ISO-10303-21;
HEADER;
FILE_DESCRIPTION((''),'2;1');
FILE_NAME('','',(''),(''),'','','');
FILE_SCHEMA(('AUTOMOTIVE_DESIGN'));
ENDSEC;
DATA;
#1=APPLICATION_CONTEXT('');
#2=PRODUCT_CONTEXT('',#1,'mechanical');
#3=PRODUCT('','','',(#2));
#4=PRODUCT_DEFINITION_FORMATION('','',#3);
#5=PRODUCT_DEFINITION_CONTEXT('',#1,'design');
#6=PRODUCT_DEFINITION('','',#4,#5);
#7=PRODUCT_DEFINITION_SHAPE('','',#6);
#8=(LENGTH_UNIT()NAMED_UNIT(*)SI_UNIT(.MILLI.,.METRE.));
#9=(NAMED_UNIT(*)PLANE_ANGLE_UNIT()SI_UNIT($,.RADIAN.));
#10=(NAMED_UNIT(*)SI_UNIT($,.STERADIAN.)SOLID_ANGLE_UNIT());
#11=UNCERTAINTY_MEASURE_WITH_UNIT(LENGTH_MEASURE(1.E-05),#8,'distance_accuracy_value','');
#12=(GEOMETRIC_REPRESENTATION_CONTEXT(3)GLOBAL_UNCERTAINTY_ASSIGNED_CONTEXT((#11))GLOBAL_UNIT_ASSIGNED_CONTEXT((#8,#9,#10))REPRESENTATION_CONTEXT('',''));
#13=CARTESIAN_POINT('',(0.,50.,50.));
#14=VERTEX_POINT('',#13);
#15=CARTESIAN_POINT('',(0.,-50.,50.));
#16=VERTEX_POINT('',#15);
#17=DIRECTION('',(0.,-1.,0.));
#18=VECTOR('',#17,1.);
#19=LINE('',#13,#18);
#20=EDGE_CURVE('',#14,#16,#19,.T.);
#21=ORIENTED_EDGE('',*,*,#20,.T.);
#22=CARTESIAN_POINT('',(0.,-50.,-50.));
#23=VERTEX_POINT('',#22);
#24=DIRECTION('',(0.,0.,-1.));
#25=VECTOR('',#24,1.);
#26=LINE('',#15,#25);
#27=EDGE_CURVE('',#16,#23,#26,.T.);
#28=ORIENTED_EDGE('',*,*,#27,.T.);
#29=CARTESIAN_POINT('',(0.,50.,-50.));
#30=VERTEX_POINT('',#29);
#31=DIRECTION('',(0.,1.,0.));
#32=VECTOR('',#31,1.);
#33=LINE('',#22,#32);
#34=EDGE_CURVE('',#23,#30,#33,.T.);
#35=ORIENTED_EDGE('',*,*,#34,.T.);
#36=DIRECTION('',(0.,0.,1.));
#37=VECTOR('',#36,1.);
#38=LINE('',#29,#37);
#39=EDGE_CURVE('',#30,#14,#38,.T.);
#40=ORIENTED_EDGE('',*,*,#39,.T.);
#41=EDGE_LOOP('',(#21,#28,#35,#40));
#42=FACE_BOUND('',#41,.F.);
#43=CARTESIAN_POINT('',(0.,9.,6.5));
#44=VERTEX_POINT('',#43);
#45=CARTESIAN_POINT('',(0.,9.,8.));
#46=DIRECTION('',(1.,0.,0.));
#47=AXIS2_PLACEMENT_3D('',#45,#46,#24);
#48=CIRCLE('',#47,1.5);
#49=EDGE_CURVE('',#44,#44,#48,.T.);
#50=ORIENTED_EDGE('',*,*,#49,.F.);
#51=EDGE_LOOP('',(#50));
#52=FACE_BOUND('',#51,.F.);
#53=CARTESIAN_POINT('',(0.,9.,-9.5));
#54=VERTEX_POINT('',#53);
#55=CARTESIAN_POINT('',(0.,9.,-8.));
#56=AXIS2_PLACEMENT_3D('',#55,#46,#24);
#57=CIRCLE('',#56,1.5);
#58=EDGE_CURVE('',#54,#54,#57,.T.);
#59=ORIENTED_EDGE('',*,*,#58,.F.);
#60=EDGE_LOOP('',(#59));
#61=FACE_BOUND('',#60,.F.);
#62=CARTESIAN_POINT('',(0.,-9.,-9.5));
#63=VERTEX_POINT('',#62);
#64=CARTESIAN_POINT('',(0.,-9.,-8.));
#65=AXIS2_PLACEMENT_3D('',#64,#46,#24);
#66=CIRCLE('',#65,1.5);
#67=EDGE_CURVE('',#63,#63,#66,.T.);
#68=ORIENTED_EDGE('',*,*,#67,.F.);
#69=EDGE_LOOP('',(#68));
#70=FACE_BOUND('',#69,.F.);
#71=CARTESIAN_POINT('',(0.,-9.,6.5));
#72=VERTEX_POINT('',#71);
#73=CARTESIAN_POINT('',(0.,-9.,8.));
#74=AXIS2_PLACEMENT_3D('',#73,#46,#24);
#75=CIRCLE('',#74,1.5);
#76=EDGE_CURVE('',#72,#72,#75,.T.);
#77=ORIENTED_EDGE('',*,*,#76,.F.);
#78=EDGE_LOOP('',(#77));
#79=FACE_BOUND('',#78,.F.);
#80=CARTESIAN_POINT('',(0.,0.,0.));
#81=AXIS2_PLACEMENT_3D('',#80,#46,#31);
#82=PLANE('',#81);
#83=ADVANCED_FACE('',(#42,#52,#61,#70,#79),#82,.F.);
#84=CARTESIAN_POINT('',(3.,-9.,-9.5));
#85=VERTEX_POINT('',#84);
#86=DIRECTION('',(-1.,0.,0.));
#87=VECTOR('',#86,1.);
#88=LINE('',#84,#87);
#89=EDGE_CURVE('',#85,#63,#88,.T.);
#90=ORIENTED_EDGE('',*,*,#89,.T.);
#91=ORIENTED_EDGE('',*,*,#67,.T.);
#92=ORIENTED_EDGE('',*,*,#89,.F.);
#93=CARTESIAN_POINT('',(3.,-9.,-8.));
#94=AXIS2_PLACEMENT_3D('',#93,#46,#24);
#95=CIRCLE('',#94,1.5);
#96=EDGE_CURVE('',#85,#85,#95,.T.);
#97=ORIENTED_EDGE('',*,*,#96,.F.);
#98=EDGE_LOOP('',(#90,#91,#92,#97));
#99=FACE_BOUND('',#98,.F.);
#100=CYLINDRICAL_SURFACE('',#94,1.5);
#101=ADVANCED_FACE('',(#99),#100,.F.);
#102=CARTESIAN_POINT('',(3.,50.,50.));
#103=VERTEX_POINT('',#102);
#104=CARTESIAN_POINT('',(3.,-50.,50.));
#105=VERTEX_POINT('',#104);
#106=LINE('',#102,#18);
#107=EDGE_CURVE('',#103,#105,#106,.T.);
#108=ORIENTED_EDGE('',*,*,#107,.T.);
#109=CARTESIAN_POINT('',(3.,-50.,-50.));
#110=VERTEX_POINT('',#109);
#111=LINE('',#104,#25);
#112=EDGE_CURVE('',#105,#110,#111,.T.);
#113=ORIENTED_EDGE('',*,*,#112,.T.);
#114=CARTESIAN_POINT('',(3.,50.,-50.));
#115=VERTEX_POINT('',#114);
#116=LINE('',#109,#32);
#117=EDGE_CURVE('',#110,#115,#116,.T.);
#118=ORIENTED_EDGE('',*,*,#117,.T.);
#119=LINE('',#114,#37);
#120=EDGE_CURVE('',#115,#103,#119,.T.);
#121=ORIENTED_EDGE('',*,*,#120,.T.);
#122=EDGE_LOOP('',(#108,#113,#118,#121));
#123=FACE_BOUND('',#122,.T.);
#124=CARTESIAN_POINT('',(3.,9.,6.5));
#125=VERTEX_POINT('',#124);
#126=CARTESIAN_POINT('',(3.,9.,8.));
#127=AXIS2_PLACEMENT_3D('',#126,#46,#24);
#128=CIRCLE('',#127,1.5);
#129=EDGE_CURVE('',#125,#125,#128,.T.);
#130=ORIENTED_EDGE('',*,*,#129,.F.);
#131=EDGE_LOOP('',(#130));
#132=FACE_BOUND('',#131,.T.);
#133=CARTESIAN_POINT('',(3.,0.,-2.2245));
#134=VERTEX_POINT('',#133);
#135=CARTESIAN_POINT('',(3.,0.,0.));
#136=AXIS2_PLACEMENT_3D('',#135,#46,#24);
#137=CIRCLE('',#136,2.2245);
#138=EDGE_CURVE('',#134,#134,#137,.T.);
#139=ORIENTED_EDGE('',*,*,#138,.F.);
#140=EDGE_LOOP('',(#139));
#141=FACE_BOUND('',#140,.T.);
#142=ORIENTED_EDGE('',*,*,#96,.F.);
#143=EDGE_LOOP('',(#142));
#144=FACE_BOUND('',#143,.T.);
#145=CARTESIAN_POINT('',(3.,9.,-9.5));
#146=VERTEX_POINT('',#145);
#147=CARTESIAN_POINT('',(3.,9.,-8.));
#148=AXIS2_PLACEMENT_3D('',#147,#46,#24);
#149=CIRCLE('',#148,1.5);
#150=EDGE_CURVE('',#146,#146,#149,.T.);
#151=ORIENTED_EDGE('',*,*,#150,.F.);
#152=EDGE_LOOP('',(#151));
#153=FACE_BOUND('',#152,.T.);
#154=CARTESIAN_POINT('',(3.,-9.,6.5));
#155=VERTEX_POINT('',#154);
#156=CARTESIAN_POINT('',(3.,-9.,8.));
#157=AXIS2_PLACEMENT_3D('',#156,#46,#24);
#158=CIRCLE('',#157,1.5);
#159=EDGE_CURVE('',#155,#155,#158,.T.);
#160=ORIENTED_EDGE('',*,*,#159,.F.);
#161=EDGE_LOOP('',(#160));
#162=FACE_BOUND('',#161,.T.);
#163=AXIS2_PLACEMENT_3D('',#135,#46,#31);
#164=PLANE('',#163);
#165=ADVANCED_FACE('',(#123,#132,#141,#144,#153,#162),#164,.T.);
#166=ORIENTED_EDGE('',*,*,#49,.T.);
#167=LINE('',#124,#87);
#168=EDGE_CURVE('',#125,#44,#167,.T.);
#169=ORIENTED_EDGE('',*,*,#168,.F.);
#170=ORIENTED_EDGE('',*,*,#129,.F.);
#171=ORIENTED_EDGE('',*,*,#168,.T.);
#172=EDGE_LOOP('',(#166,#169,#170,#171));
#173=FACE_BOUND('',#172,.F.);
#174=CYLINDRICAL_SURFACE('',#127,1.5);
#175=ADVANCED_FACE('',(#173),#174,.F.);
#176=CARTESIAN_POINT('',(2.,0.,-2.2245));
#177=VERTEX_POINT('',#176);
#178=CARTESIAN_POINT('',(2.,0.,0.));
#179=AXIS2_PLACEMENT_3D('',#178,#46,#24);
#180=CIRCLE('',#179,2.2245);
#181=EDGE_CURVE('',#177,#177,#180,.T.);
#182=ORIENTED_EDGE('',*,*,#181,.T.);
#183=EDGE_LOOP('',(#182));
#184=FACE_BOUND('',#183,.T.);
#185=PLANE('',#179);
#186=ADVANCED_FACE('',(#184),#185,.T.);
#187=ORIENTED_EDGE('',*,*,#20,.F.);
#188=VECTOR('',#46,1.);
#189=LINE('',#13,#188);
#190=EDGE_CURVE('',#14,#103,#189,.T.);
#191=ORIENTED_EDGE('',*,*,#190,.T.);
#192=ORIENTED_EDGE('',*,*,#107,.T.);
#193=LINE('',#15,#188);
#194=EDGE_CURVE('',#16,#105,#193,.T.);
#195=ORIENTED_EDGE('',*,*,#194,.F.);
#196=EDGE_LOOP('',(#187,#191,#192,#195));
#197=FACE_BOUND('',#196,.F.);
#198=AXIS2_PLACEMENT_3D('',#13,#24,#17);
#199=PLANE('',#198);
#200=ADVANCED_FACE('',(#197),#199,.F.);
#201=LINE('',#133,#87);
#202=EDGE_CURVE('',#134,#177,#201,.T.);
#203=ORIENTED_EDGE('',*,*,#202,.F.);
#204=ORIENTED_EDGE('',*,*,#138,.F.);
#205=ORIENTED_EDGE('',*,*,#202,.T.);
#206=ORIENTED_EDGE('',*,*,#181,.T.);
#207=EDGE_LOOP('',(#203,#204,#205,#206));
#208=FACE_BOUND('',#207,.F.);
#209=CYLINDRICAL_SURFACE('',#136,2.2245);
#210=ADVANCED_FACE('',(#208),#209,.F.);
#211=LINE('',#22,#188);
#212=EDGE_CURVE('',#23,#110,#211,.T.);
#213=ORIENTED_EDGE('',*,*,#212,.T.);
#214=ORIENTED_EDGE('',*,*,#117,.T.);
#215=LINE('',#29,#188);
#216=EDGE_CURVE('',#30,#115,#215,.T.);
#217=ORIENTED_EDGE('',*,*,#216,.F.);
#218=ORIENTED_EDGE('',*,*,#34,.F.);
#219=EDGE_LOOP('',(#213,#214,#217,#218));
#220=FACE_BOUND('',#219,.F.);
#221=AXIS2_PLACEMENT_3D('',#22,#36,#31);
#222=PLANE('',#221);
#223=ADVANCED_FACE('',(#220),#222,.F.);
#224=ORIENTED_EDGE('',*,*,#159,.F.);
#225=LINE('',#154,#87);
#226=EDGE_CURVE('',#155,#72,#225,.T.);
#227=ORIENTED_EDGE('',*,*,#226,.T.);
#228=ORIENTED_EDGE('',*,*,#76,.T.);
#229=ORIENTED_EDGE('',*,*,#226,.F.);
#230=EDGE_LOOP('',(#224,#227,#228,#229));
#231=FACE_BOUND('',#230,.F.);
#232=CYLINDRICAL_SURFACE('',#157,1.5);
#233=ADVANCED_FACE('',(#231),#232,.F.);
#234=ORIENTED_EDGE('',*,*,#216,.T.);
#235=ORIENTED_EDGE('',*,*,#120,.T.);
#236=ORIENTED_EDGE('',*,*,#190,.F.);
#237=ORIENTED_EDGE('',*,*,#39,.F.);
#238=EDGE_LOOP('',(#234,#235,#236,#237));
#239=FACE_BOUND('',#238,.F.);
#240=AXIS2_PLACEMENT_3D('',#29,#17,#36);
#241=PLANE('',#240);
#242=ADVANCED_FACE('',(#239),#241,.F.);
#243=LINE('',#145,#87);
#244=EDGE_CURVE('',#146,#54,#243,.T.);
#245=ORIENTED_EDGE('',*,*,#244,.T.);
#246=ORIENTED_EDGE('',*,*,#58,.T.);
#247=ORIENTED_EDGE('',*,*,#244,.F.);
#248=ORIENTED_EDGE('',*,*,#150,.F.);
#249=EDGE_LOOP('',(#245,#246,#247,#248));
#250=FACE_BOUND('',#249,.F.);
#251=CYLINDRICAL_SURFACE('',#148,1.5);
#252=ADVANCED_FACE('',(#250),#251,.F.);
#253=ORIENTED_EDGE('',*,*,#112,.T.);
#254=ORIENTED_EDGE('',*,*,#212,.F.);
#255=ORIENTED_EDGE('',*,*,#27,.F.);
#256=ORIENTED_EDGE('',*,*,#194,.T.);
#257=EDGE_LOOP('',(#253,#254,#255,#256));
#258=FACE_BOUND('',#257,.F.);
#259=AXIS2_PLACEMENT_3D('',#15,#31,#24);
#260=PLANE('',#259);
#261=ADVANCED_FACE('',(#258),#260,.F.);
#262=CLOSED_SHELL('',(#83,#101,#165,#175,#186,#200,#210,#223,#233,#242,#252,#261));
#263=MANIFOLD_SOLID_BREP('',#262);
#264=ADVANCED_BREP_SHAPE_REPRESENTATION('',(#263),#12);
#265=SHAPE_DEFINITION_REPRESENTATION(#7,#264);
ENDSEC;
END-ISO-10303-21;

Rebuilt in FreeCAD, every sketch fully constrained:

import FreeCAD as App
import Part
import Sketcher
from FreeCAD import Vector
Q = App.Units.Quantity

doc = App.newDocument("Part")
body = doc.addObject("PartDesign::Body", "Body")

sketch1 = doc.addObject("Sketcher::SketchObject", "Sketch")
body.addObject(sketch1)
sketch1.AttachmentSupport = (doc.YZ_Plane, [""])
sketch1.MapMode = "FlatFace"
sketch1.addGeometry(Part.LineSegment(Vector(50, -50, 0), Vector(50, 50, 0)), False)
sketch1.addGeometry(Part.LineSegment(Vector(50, 50, 0), Vector(-50, 50, 0)), False)
sketch1.addGeometry(Part.LineSegment(Vector(-50, 50, 0), Vector(-50, -50, 0)), False)
sketch1.addGeometry(Part.LineSegment(Vector(-50, -50, 0), Vector(50, -50, 0)), False)
sketch1.addConstraint(Sketcher.Constraint("Coincident", 0, 2, 1, 1))
sketch1.addConstraint(Sketcher.Constraint("Coincident", 1, 2, 2, 1))
sketch1.addConstraint(Sketcher.Constraint("Coincident", 2, 2, 3, 1))
sketch1.addConstraint(Sketcher.Constraint("Coincident", 3, 2, 0, 1))
sketch1.addConstraint(Sketcher.Constraint("Vertical", 0))
sketch1.addConstraint(Sketcher.Constraint("Horizontal", 1))
sketch1.addConstraint(Sketcher.Constraint("Vertical", 2))
sketch1.addConstraint(Sketcher.Constraint("Horizontal", 3))
sketch1.addConstraint(Sketcher.Constraint("Symmetric", 0, 2, 2, 2, -1, 1))
sketch1.addConstraint(Sketcher.Constraint("Equal", 3, 0))
sketch1.addConstraint(Sketcher.Constraint("DistanceX", 1, 2, 1, 1, Q("100 mm")))
pad1 = doc.addObject("PartDesign::Pad", "Pad")
body.addObject(pad1)
pad1.Profile = sketch1
pad1.Length = 3

sketch2 = doc.addObject("Sketcher::SketchObject", "Sketch001")
body.addObject(sketch2)
sketch2.AttachmentSupport = (doc.YZ_Plane, [""])
sketch2.MapMode = "FlatFace"
sketch2.AttachmentOffset = App.Placement(Vector(0, 0, 3), App.Rotation())
sketch2.addGeometry(Part.Circle(Vector(-9, 8, 0), Vector(0, 0, 1), 1.5), False)
sketch2.addGeometry(Part.Circle(Vector(-9, -8, 0), Vector(0, 0, 1), 1.5), False)
sketch2.addGeometry(Part.Circle(Vector(9, -8, 0), Vector(0, 0, 1), 1.5), False)
sketch2.addGeometry(Part.Circle(Vector(9, 8, 0), Vector(0, 0, 1), 1.5), False)
sketch2.addConstraint(Sketcher.Constraint("Equal", 0, 1))
sketch2.addConstraint(Sketcher.Constraint("Equal", 1, 2))
sketch2.addConstraint(Sketcher.Constraint("Equal", 2, 3))
sketch2.addConstraint(Sketcher.Constraint("Symmetric", 0, 3, 2, 3, -1, 1))
sketch2.addConstraint(Sketcher.Constraint("Symmetric", 1, 3, 3, 3, -1, 1))
sketch2.addConstraint(Sketcher.Constraint("Symmetric", 1, 3, 2, 3, -2))
sketch2.addConstraint(Sketcher.Constraint("Diameter", 0, Q("3 mm")))
sketch2.addConstraint(Sketcher.Constraint("DistanceX", 0, 3, -1, 1, Q("9 mm")))
sketch2.addConstraint(Sketcher.Constraint("DistanceY", -1, 1, 0, 3, Q("8 mm")))
pocket1 = doc.addObject("PartDesign::Pocket", "Pocket")
body.addObject(pocket1)
pocket1.Profile = sketch2
pocket1.Length = 3

sketch3 = doc.addObject("Sketcher::SketchObject", "Sketch002")
body.addObject(sketch3)
sketch3.AttachmentSupport = (doc.YZ_Plane, [""])
sketch3.MapMode = "FlatFace"
sketch3.AttachmentOffset = App.Placement(Vector(0, 0, 3), App.Rotation())
sketch3.addGeometry(Part.Circle(Vector(0, 0, 0), Vector(0, 0, 1), 2.2), False)
sketch3.addConstraint(Sketcher.Constraint("Coincident", 0, 3, -1, 1))
sketch3.addConstraint(Sketcher.Constraint("Diameter", 0, Q("4.449 mm")))
pocket2 = doc.addObject("PartDesign::Pocket", "Pocket001")
body.addObject(pocket2)
pocket2.Profile = sketch3
pocket2.Length = 1

doc.recompute()
